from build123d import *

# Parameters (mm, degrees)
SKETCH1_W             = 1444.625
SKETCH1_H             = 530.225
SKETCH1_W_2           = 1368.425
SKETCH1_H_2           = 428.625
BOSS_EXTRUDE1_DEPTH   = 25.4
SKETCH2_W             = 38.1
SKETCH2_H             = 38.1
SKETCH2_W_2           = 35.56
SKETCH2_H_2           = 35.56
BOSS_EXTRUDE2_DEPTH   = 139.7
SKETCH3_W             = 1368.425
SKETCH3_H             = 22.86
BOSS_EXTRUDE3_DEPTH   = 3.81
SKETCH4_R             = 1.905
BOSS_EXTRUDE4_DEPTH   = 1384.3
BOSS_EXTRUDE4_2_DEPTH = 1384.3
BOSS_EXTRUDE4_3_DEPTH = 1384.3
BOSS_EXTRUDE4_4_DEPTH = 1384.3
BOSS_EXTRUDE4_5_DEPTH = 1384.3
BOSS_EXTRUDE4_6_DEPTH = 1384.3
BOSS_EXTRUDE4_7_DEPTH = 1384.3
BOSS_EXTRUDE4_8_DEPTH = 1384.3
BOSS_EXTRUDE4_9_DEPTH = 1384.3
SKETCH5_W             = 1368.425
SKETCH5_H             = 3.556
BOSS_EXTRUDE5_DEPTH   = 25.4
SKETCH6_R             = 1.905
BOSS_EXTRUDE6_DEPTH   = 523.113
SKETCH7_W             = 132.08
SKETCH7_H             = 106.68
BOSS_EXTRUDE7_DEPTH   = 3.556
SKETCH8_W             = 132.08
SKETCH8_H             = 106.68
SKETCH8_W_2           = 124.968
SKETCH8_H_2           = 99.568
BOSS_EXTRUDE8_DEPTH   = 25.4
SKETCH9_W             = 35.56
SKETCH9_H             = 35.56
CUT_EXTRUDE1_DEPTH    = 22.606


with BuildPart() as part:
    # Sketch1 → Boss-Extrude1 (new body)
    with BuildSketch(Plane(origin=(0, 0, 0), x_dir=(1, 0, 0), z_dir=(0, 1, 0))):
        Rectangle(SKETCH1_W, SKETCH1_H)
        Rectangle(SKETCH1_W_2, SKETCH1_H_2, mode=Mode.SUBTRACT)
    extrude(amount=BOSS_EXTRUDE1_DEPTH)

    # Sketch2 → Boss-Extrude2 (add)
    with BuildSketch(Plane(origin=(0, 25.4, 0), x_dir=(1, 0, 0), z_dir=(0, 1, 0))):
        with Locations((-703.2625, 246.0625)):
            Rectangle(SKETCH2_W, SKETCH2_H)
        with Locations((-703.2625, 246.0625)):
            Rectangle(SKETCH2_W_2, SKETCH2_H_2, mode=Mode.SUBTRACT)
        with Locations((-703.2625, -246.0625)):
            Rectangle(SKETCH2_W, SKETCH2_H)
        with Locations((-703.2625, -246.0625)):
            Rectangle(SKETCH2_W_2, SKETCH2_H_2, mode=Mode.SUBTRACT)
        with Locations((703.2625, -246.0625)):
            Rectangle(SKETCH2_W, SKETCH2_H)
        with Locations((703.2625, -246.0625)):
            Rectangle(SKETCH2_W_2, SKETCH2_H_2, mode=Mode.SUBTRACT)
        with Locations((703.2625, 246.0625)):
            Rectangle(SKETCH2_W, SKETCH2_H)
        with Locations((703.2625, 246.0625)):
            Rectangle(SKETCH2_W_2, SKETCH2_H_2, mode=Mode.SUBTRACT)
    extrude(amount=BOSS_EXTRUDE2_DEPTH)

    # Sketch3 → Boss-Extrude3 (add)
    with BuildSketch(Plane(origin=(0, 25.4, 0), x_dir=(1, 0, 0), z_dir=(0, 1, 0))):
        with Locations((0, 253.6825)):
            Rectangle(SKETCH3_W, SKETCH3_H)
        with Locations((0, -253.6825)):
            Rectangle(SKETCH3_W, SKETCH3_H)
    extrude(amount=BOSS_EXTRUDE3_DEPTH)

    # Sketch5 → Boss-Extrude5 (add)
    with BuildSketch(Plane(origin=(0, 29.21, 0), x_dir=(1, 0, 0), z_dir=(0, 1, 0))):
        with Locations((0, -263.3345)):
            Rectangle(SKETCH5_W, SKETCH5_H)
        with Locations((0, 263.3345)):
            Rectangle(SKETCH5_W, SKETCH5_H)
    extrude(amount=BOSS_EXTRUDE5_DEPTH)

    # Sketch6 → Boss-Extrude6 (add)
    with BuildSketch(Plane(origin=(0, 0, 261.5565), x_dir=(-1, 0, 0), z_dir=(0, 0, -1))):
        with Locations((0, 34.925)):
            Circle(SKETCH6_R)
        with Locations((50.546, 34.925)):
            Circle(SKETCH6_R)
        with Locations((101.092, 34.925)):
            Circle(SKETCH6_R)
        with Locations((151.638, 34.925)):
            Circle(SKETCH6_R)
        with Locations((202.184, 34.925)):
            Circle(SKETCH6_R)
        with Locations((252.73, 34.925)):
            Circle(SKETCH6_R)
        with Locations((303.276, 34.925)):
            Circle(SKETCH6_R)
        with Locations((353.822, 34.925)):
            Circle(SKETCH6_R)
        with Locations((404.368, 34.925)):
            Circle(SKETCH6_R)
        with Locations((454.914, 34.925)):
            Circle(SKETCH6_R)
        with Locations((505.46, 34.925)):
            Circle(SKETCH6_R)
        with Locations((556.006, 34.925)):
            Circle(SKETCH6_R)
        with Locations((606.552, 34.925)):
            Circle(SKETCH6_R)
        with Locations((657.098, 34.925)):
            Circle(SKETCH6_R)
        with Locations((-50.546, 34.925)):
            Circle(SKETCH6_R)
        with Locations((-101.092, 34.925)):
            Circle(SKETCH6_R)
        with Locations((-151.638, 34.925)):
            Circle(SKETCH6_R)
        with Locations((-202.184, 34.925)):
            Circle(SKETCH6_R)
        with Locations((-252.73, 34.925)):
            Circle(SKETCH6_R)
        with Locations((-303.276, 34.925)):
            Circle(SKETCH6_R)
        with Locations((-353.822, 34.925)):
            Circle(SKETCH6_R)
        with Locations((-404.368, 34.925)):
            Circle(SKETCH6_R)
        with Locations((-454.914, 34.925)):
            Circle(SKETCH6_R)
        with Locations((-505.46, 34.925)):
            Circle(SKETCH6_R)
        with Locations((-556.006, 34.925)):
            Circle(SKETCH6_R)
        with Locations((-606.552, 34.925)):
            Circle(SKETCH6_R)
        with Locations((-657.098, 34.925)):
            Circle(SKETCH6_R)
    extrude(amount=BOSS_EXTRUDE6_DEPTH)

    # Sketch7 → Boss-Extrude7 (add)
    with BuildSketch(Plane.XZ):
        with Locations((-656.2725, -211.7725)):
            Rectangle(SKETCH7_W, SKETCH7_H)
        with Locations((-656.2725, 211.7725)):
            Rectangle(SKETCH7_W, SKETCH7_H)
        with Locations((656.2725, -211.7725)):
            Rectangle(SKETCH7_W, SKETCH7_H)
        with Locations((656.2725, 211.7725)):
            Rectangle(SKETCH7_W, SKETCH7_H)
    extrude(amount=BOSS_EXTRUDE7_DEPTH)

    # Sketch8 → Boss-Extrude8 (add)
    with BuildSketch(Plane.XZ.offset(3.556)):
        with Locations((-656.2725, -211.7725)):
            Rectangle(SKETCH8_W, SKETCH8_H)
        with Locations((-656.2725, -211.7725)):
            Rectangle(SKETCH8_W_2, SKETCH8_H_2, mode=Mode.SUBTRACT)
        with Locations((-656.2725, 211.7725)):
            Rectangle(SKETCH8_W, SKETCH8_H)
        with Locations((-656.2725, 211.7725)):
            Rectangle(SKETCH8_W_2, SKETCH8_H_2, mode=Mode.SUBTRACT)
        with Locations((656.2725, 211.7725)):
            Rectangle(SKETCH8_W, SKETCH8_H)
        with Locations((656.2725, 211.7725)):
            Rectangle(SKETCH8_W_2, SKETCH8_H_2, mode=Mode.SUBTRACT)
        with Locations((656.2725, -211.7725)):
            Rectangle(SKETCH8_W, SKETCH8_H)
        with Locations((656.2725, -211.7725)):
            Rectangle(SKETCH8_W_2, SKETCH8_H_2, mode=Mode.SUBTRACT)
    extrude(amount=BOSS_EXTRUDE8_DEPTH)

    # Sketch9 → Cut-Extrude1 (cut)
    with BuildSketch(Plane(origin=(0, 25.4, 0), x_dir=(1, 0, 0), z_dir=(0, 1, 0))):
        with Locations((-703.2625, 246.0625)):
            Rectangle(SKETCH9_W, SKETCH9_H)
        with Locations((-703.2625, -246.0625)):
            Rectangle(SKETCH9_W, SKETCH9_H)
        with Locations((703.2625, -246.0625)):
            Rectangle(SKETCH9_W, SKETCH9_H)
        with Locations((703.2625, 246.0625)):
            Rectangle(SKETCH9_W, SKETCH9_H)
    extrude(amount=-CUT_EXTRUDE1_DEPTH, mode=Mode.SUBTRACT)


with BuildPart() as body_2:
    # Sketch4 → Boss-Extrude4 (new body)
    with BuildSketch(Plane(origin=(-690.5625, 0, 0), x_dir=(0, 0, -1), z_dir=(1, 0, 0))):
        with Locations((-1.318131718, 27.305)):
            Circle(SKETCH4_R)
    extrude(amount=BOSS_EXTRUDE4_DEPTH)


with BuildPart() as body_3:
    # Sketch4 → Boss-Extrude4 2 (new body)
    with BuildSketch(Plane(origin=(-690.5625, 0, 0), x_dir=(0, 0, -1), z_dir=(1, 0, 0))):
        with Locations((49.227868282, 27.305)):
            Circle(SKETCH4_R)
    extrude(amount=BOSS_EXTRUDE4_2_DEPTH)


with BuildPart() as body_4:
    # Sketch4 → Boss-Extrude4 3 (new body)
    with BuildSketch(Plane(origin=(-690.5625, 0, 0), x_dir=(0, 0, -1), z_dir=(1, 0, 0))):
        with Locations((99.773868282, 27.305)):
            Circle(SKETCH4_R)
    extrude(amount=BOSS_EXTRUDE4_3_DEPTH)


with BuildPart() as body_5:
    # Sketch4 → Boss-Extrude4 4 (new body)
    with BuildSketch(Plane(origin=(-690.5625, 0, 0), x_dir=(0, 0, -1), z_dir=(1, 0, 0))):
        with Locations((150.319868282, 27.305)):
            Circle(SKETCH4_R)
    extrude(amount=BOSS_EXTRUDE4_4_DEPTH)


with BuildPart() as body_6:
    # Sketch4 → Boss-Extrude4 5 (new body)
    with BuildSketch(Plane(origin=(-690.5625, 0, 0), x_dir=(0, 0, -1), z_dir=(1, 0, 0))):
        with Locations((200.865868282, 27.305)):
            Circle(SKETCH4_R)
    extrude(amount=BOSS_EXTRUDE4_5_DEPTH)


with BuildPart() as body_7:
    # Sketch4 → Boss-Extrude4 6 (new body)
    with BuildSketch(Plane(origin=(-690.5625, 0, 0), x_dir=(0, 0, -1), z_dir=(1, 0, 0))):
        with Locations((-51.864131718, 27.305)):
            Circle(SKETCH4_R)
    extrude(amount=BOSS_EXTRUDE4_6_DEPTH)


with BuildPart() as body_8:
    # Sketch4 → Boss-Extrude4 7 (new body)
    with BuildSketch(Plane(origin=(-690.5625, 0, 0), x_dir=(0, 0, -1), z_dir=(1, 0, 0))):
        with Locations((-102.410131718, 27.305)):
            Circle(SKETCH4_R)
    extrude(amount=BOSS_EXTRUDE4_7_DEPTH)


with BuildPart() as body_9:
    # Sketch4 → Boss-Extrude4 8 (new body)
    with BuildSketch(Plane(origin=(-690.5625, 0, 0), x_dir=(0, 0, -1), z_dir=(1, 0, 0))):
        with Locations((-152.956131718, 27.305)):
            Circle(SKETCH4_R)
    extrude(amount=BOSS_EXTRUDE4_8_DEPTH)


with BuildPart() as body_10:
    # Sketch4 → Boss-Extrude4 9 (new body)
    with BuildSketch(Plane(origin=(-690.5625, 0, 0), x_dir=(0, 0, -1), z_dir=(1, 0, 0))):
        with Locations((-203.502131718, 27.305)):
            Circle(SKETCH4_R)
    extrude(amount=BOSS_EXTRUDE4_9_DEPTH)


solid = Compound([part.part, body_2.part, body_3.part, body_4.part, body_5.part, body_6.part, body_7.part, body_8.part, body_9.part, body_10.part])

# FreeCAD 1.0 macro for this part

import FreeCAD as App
import Part
import Sketcher
Q = App.Units.Quantity

doc = App.newDocument("Part")
params = doc.addObject("Spreadsheet::Sheet", "Params")
for row, (alias, value) in enumerate([
    ("sketch1_width", "56.875 in"),
    ("sketch1_height", "20.875 in"),
    ("pad1_length", "1 in"),
    ("sketch2_width", "1.5 in"),
    ("sketch2_width2", "1.4 in"),
    ("pad2_length", "5.5 in"),
    ("sketch3_height", "0.9 in"),
    ("sketch3_width", "53.875 in"),
    ("pad3_length", "0.15 in"),
    ("sketch4_height", "0.14 in"),
    ("sketch4_width", "53.875 in"),
    ("pad4_length", "1 in"),
    ("sketch5_diameter", "0.15 in"),
    ("pad5_length", "20.595 in"),
    ("sketch6_width", "5.2 in"),
    ("sketch6_height", "4.2 in"),
    ("pad6_length", "0.14 in"),
    ("sketch7_width", "5.2 in"),
    ("sketch7_height", "4.2 in"),
    ("sketch7_width2", "4.92 in"),
    ("sketch7_height2", "3.92 in"),
    ("pad7_length", "1 in"),
    ("sketch8_width", "1.4 in"),
    ("pocket1_length", "0.89 in"),
    ("sketch9_diameter", "0.15 in"),
    ("pad8_length", "54.5 in"),
    ("sketch10_diameter", "0.15 in"),
    ("pad9_length", "54.5 in"),
    ("sketch11_diameter", "0.15 in"),
    ("pad10_length", "54.5 in"),
    ("sketch12_diameter", "0.15 in"),
    ("pad11_length", "54.5 in"),
    ("sketch13_diameter", "0.15 in"),
    ("pad12_length", "54.5 in"),
    ("sketch14_diameter", "0.15 in"),
    ("pad13_length", "54.5 in"),
    ("sketch15_diameter", "0.15 in"),
    ("pad14_length", "54.5 in"),
    ("sketch16_diameter", "0.15 in"),
    ("pad15_length", "54.5 in"),
    ("sketch17_diameter", "0.15 in"),
    ("pad16_length", "54.5 in"),
], start=1):
    params.set(f"A{row}", alias)
    params.set(f"B{row}", "=" + value)
    params.setAlias(f"B{row}", alias)

body = doc.addObject("PartDesign::Body", "Body")

# Sketch on XZ plane
sketch1 = doc.addObject("Sketcher::SketchObject", "Sketch")
body.addObject(sketch1)
sketch1.AttachmentSupport = (doc.XZ_Plane, [""])
sketch1.MapMode = "FlatFace"
sketch1.addGeometry([
    Part.LineSegment(App.Vector(-722, -265, 0), App.Vector(-722, 265, 0)),  # 0
    Part.LineSegment(App.Vector(-722, 265, 0), App.Vector(722, 265, 0)),  # 1
    Part.LineSegment(App.Vector(722, 265, 0), App.Vector(722, -265, 0)),  # 2
    Part.LineSegment(App.Vector(722, -265, 0), App.Vector(-722, -265, 0)),  # 3
    Part.LineSegment(App.Vector(684, 214, 0), App.Vector(-684, 214, 0)),  # 4
    Part.LineSegment(App.Vector(-684, 214, 0), App.Vector(-684, -214, 0)),  # 5
    Part.LineSegment(App.Vector(-684, -214, 0), App.Vector(684, -214, 0)),  # 6
    Part.LineSegment(App.Vector(684, -214, 0), App.Vector(684, 214, 0)),  # 7
], False)
sketch1.addConstraint([
    Sketcher.Constraint("Coincident", 0, 2, 1, 1),
    Sketcher.Constraint("Coincident", 1, 2, 2, 1),
    Sketcher.Constraint("Coincident", 2, 2, 3, 1),
    Sketcher.Constraint("Coincident", 3, 2, 0, 1),
    Sketcher.Constraint("Coincident", 4, 2, 5, 1),
    Sketcher.Constraint("Coincident", 5, 2, 6, 1),
    Sketcher.Constraint("Coincident", 6, 2, 7, 1),
    Sketcher.Constraint("Coincident", 7, 2, 4, 1),
    Sketcher.Constraint("Vertical", 0),
    Sketcher.Constraint("Horizontal", 1),
    Sketcher.Constraint("Vertical", 2),
    Sketcher.Constraint("Horizontal", 3),
    Sketcher.Constraint("Horizontal", 4),
    Sketcher.Constraint("Vertical", 5),
    Sketcher.Constraint("Horizontal", 6),
    Sketcher.Constraint("Vertical", 7),
    Sketcher.Constraint("Symmetric", 0, 2, 2, 2, -1, 1),
    Sketcher.Constraint("Symmetric", 4, 2, 6, 2, -1, 1),
    Sketcher.Constraint("DistanceY", 4, 2, 0, 2, Q("2 in")),
    Sketcher.Constraint("DistanceX", 0, 2, 4, 2, Q("1.5 in")),
    Sketcher.Constraint("DistanceX", 1, 1, 1, 2, Q("56.875 in")),
    Sketcher.Constraint("DistanceY", 0, 1, 0, 2, Q("20.875 in")),
])
sketch1.setExpression("Constraints[20]", "Params.sketch1_width")
sketch1.setExpression("Constraints[21]", "Params.sketch1_height")
pad1 = doc.addObject("PartDesign::Pad", "Pad")
body.addObject(pad1)
pad1.Profile = sketch1
pad1.setExpression("Length", "Params.pad1_length")
pad1.Reversed = True

# Sketch on XZ plane
sketch2 = doc.addObject("Sketcher::SketchObject", "Sketch001")
body.addObject(sketch2)
sketch2.AttachmentSupport = (doc.XZ_Plane, [""])
sketch2.MapMode = "FlatFace"
sketch2.AttachmentOffset = App.Placement(App.Vector(0, 0, -1 * 25.4), App.Rotation())
sketch2.addGeometry([
    Part.LineSegment(App.Vector(-722, -265, 0), App.Vector(-722, -227, 0)),  # 0
    Part.LineSegment(App.Vector(-722, -227, 0), App.Vector(-684, -227, 0)),  # 1
    Part.LineSegment(App.Vector(-684, -227, 0), App.Vector(-684, -265, 0)),  # 2
    Part.LineSegment(App.Vector(-684, -265, 0), App.Vector(-722, -265, 0)),  # 3
    Part.LineSegment(App.Vector(-685, -228, 0), App.Vector(-721, -228, 0)),  # 4
    Part.LineSegment(App.Vector(-721, -228, 0), App.Vector(-721, -264, 0)),  # 5
    Part.LineSegment(App.Vector(-721, -264, 0), App.Vector(-685, -264, 0)),  # 6
    Part.LineSegment(App.Vector(-685, -264, 0), App.Vector(-685, -228, 0)),  # 7
    Part.LineSegment(App.Vector(-722, 227, 0), App.Vector(-722, 265, 0)),  # 8
    Part.LineSegment(App.Vector(-722, 265, 0), App.Vector(-684, 265, 0)),  # 9
    Part.LineSegment(App.Vector(-684, 265, 0), App.Vector(-684, 227, 0)),  # 10
    Part.LineSegment(App.Vector(-684, 227, 0), App.Vector(-722, 227, 0)),  # 11
    Part.LineSegment(App.Vector(-685, 264, 0), App.Vector(-721, 264, 0)),  # 12
    Part.LineSegment(App.Vector(-721, 264, 0), App.Vector(-721, 228, 0)),  # 13
    Part.LineSegment(App.Vector(-721, 228, 0), App.Vector(-685, 228, 0)),  # 14
    Part.LineSegment(App.Vector(-685, 228, 0), App.Vector(-685, 264, 0)),  # 15
    Part.LineSegment(App.Vector(684, 227, 0), App.Vector(684, 265, 0)),  # 16
    Part.LineSegment(App.Vector(684, 265, 0), App.Vector(722, 265, 0)),  # 17
    Part.LineSegment(App.Vector(722, 265, 0), App.Vector(722, 227, 0)),  # 18
    Part.LineSegment(App.Vector(722, 227, 0), App.Vector(684, 227, 0)),  # 19
    Part.LineSegment(App.Vector(721, 264, 0), App.Vector(685, 264, 0)),  # 20
    Part.LineSegment(App.Vector(685, 264, 0), App.Vector(685, 228, 0)),  # 21
    Part.LineSegment(App.Vector(685, 228, 0), App.Vector(721, 228, 0)),  # 22
    Part.LineSegment(App.Vector(721, 228, 0), App.Vector(721, 264, 0)),  # 23
    Part.LineSegment(App.Vector(684, -265, 0), App.Vector(684, -227, 0)),  # 24
    Part.LineSegment(App.Vector(684, -227, 0), App.Vector(722, -227, 0)),  # 25
    Part.LineSegment(App.Vector(722, -227, 0), App.Vector(722, -265, 0)),  # 26
    Part.LineSegment(App.Vector(722, -265, 0), App.Vector(684, -265, 0)),  # 27
    Part.LineSegment(App.Vector(721, -228, 0), App.Vector(685, -228, 0)),  # 28
    Part.LineSegment(App.Vector(685, -228, 0), App.Vector(685, -264, 0)),  # 29
    Part.LineSegment(App.Vector(685, -264, 0), App.Vector(721, -264, 0)),  # 30
    Part.LineSegment(App.Vector(721, -264, 0), App.Vector(721, -228, 0)),  # 31
], False)
sketch2.addConstraint([
    Sketcher.Constraint("Coincident", 0, 2, 1, 1),
    Sketcher.Constraint("Coincident", 1, 2, 2, 1),
    Sketcher.Constraint("Coincident", 2, 2, 3, 1),
    Sketcher.Constraint("Coincident", 3, 2, 0, 1),
    Sketcher.Constraint("Coincident", 4, 2, 5, 1),
    Sketcher.Constraint("Coincident", 5, 2, 6, 1),
    Sketcher.Constraint("Coincident", 6, 2, 7, 1),
    Sketcher.Constraint("Coincident", 7, 2, 4, 1),
    Sketcher.Constraint("Coincident", 8, 2, 9, 1),
    Sketcher.Constraint("Coincident", 9, 2, 10, 1),
    Sketcher.Constraint("Coincident", 10, 2, 11, 1),
    Sketcher.Constraint("Coincident", 11, 2, 8, 1),
    Sketcher.Constraint("Coincident", 12, 2, 13, 1),
    Sketcher.Constraint("Coincident", 13, 2, 14, 1),
    Sketcher.Constraint("Coincident", 14, 2, 15, 1),
    Sketcher.Constraint("Coincident", 15, 2, 12, 1),
    Sketcher.Constraint("Coincident", 16, 2, 17, 1),
    Sketcher.Constraint("Coincident", 17, 2, 18, 1),
    Sketcher.Constraint("Coincident", 18, 2, 19, 1),
    Sketcher.Constraint("Coincident", 19, 2, 16, 1),
    Sketcher.Constraint("Coincident", 20, 2, 21, 1),
    Sketcher.Constraint("Coincident", 21, 2, 22, 1),
    Sketcher.Constraint("Coincident", 22, 2, 23, 1),
    Sketcher.Constraint("Coincident", 23, 2, 20, 1),
    Sketcher.Constraint("Coincident", 24, 2, 25, 1),
    Sketcher.Constraint("Coincident", 25, 2, 26, 1),
    Sketcher.Constraint("Coincident", 26, 2, 27, 1),
    Sketcher.Constraint("Coincident", 27, 2, 24, 1),
    Sketcher.Constraint("Coincident", 28, 2, 29, 1),
    Sketcher.Constraint("Coincident", 29, 2, 30, 1),
    Sketcher.Constraint("Coincident", 30, 2, 31, 1),
    Sketcher.Constraint("Coincident", 31, 2, 28, 1),
    Sketcher.Constraint("Vertical", 0),
    Sketcher.Constraint("Horizontal", 1),
    Sketcher.Constraint("Vertical", 2),
    Sketcher.Constraint("Horizontal", 3),
    Sketcher.Constraint("Horizontal", 4),
    Sketcher.Constraint("Vertical", 5),
    Sketcher.Constraint("Horizontal", 6),
    Sketcher.Constraint("Vertical", 7),
    Sketcher.Constraint("Vertical", 8),
    Sketcher.Constraint("Horizontal", 9),
    Sketcher.Constraint("Vertical", 10),
    Sketcher.Constraint("Horizontal", 11),
    Sketcher.Constraint("Horizontal", 12),
    Sketcher.Constraint("Vertical", 13),
    Sketcher.Constraint("Horizontal", 14),
    Sketcher.Constraint("Vertical", 15),
    Sketcher.Constraint("Vertical", 16),
    Sketcher.Constraint("Horizontal", 17),
    Sketcher.Constraint("Vertical", 18),
    Sketcher.Constraint("Horizontal", 19),
    Sketcher.Constraint("Horizontal", 20),
    Sketcher.Constraint("Vertical", 21),
    Sketcher.Constraint("Horizontal", 22),
    Sketcher.Constraint("Vertical", 23),
    Sketcher.Constraint("Vertical", 24),
    Sketcher.Constraint("Horizontal", 25),
    Sketcher.Constraint("Vertical", 26),
    Sketcher.Constraint("Horizontal", 27),
    Sketcher.Constraint("Horizontal", 28),
    Sketcher.Constraint("Vertical", 29),
    Sketcher.Constraint("Horizontal", 30),
    Sketcher.Constraint("Vertical", 31),
    Sketcher.Constraint("Symmetric", 2, 2, 16, 2, -1, 1),
    Sketcher.Constraint("Symmetric", 0, 2, 18, 2, -1, 1),
    Sketcher.Constraint("Symmetric", 6, 2, 20, 2, -1, 1),
    Sketcher.Constraint("Symmetric", 4, 2, 22, 2, -1, 1),
    Sketcher.Constraint("Symmetric", 10, 2, 24, 2, -1, 1),
    Sketcher.Constraint("Symmetric", 8, 2, 26, 2, -1, 1),
    Sketcher.Constraint("Symmetric", 14, 2, 28, 2, -1, 1),
    Sketcher.Constraint("Symmetric", 12, 2, 30, 2, -1, 1),
    Sketcher.Constraint("Symmetric", 9, 2, 16, 2, -2),
    Sketcher.Constraint("Symmetric", 11, 2, 18, 2, -2),
    Sketcher.Constraint("Symmetric", 15, 2, 20, 2, -2),
    Sketcher.Constraint("Symmetric", 13, 2, 22, 2, -2),
    Sketcher.Constraint("Equal", 27, 0),
    Sketcher.Constraint("Equal", 30, 5),
    Sketcher.Constraint("DistanceX", 1, 1, 1, 2, Q("1.5 in")),
    Sketcher.Constraint("DistanceX", 4, 2, 4, 1, Q("1.4 in")),
    Sketcher.Constraint("DistanceX", 0, 2, 4, 2, Q("0.05 in")),
    Sketcher.Constraint("DistanceY", 4, 2, 0, 2, Q("0.05 in")),
    Sketcher.Constraint("DistanceX", 0, 2, -1, 1, Q("28.4375 in")),
    Sketcher.Constraint("DistanceY", 0, 2, -1, 1, Q("8.9375 in")),
])
sketch2.setExpression("Constraints[78]", "Params.sketch2_width")
sketch2.setExpression("Constraints[79]", "Params.sketch2_width2")
pad2 = doc.addObject("PartDesign::Pad", "Pad001")
body.addObject(pad2)
pad2.Profile = sketch2
pad2.setExpression("Length", "Params.pad2_length")
pad2.Reversed = True

# Sketch on XZ plane
sketch3 = doc.addObject("Sketcher::SketchObject", "Sketch002")
body.addObject(sketch3)
sketch3.AttachmentSupport = (doc.XZ_Plane, [""])
sketch3.MapMode = "FlatFace"
sketch3.AttachmentOffset = App.Placement(App.Vector(0, 0, -1 * 25.4), App.Rotation())
sketch3.addGeometry([
    Part.LineSegment(App.Vector(-684, -265, 0), App.Vector(-684, -242, 0)),  # 0
    Part.LineSegment(App.Vector(-684, -242, 0), App.Vector(684, -242, 0)),  # 1
    Part.LineSegment(App.Vector(684, -242, 0), App.Vector(684, -265, 0)),  # 2
    Part.LineSegment(App.Vector(684, -265, 0), App.Vector(-684, -265, 0)),  # 3
    Part.LineSegment(App.Vector(-684, 242, 0), App.Vector(-684, 265, 0)),  # 4
    Part.LineSegment(App.Vector(-684, 265, 0), App.Vector(684, 265, 0)),  # 5
    Part.LineSegment(App.Vector(684, 265, 0), App.Vector(684, 242, 0)),  # 6
    Part.LineSegment(App.Vector(684, 242, 0), App.Vector(-684, 242, 0)),  # 7
], False)
sketch3.addConstraint([
    Sketcher.Constraint("Coincident", 0, 2, 1, 1),
    Sketcher.Constraint("Coincident", 1, 2, 2, 1),
    Sketcher.Constraint("Coincident", 2, 2, 3, 1),
    Sketcher.Constraint("Coincident", 3, 2, 0, 1),
    Sketcher.Constraint("Coincident", 4, 2, 5, 1),
    Sketcher.Constraint("Coincident", 5, 2, 6, 1),
    Sketcher.Constraint("Coincident", 6, 2, 7, 1),
    Sketcher.Constraint("Coincident", 7, 2, 4, 1),
    Sketcher.Constraint("Vertical", 0),
    Sketcher.Constraint("Horizontal", 1),
    Sketcher.Constraint("Vertical", 2),
    Sketcher.Constraint("Horizontal", 3),
    Sketcher.Constraint("Vertical", 4),
    Sketcher.Constraint("Horizontal", 5),
    Sketcher.Constraint("Vertical", 6),
    Sketcher.Constraint("Horizontal", 7),
    Sketcher.Constraint("Symmetric", 2, 2, 4, 2, -1, 1),
    Sketcher.Constraint("Symmetric", 0, 2, 6, 2, -1, 1),
    Sketcher.Constraint("Vertical", 3, 2, 4, 2),
    Sketcher.Constraint("DistanceY", 0, 1, 0, 2, Q("0.9 in")),
    Sketcher.Constraint("DistanceX", 1, 1, 1, 2, Q("53.875 in")),
    Sketcher.Constraint("DistanceY", 2, 2, -1, 1, Q("10.4375 in")),
])
sketch3.setExpression("Constraints[19]", "Params.sketch3_height")
sketch3.setExpression("Constraints[20]", "Params.sketch3_width")
pad3 = doc.addObject("PartDesign::Pad", "Pad002")
body.addObject(pad3)
pad3.Profile = sketch3
pad3.setExpression("Length", "Params.pad3_length")
pad3.Reversed = True

# Sketch on XZ plane
sketch4 = doc.addObject("Sketcher::SketchObject", "Sketch003")
body.addObject(sketch4)
sketch4.AttachmentSupport = (doc.XZ_Plane, [""])
sketch4.MapMode = "FlatFace"
sketch4.AttachmentOffset = App.Placement(App.Vector(0, 0, -1.15 * 25.4), App.Rotation())
sketch4.addGeometry([
    Part.LineSegment(App.Vector(-684.2, 261.6, 0), App.Vector(-684.2, 265.1, 0)),  # 0
    Part.LineSegment(App.Vector(-684.2, 265.1, 0), App.Vector(684.2, 265.1, 0)),  # 1
    Part.LineSegment(App.Vector(684.2, 265.1, 0), App.Vector(684.2, 261.6, 0)),  # 2
    Part.LineSegment(App.Vector(684.2, 261.6, 0), App.Vector(-684.2, 261.6, 0)),  # 3
    Part.LineSegment(App.Vector(-684.2, -265.1, 0), App.Vector(-684.2, -261.6, 0)),  # 4
    Part.LineSegment(App.Vector(-684.2, -261.6, 0), App.Vector(684.2, -261.6, 0)),  # 5
    Part.LineSegment(App.Vector(684.2, -261.6, 0), App.Vector(684.2, -265.1, 0)),  # 6
    Part.LineSegment(App.Vector(684.2, -265.1, 0), App.Vector(-684.2, -265.1, 0)),  # 7
], False)
sketch4.addConstraint([
    Sketcher.Constraint("Coincident", 0, 2, 1, 1),
    Sketcher.Constraint("Coincident", 1, 2, 2, 1),
    Sketcher.Constraint("Coincident", 2, 2, 3, 1),
    Sketcher.Constraint("Coincident", 3, 2, 0, 1),
    Sketcher.Constraint("Coincident", 4, 2, 5, 1),
    Sketcher.Constraint("Coincident", 5, 2, 6, 1),
    Sketcher.Constraint("Coincident", 6, 2, 7, 1),
    Sketcher.Constraint("Coincident", 7, 2, 4, 1),
    Sketcher.Constraint("Vertical", 0),
    Sketcher.Constraint("Horizontal", 1),
    Sketcher.Constraint("Vertical", 2),
    Sketcher.Constraint("Horizontal", 3),
    Sketcher.Constraint("Vertical", 4),
    Sketcher.Constraint("Horizontal", 5),
    Sketcher.Constraint("Vertical", 6),
    Sketcher.Constraint("Horizontal", 7),
    Sketcher.Constraint("Symmetric", 2, 2, 4, 2, -1, 1),
    Sketcher.Constraint("Symmetric", 0, 2, 6, 2, -1, 1),
    Sketcher.Constraint("Vertical", 3, 2, 4, 2),
    Sketcher.Constraint("DistanceY", 0, 1, 0, 2, Q("0.14 in")),
    Sketcher.Constraint("DistanceX", 1, 1, 1, 2, Q("53.875 in")),
    Sketcher.Constraint("DistanceY", -1, 1, 0, 2, Q("10.4375 in")),
])
sketch4.setExpression("Constraints[19]", "Params.sketch4_height")
sketch4.setExpression("Constraints[20]", "Params.sketch4_width")
pad4 = doc.addObject("PartDesign::Pad", "Pad003")
body.addObject(pad4)
pad4.Profile = sketch4
pad4.setExpression("Length", "Params.pad4_length")
pad4.Reversed = True

# Sketch on XY plane
sketch5 = doc.addObject("Sketcher::SketchObject", "Sketch004")
body.addObject(sketch5)
sketch5.AttachmentSupport = (doc.XY_Plane, [""])
sketch5.MapMode = "FlatFace"
sketch5.AttachmentOffset = App.Placement(App.Vector(0, 0, 10.2975 * 25.4), App.Rotation())
sketch5.addGeometry([
    Part.Circle(App.Vector(0, 34.9, 0), App.Vector(0, 0, 1), 1.9),  # 0
    Part.Circle(App.Vector(-50.5, 34.9, 0), App.Vector(0, 0, 1), 1.9),  # 1
    Part.Circle(App.Vector(-101.1, 34.9, 0), App.Vector(0, 0, 1), 1.9),  # 2
    Part.Circle(App.Vector(-151.6, 34.9, 0), App.Vector(0, 0, 1), 1.9),  # 3
    Part.Circle(App.Vector(-202.2, 34.9, 0), App.Vector(0, 0, 1), 1.9),  # 4
    Part.Circle(App.Vector(-252.7, 34.9, 0), App.Vector(0, 0, 1), 1.9),  # 5
    Part.Circle(App.Vector(-303.3, 34.9, 0), App.Vector(0, 0, 1), 1.9),  # 6
    Part.Circle(App.Vector(-353.8, 34.9, 0), App.Vector(0, 0, 1), 1.9),  # 7
    Part.Circle(App.Vector(-404.4, 34.9, 0), App.Vector(0, 0, 1), 1.9),  # 8
    Part.Circle(App.Vector(-454.9, 34.9, 0), App.Vector(0, 0, 1), 1.9),  # 9
    Part.Circle(App.Vector(-505.5, 34.9, 0), App.Vector(0, 0, 1), 1.9),  # 10
    Part.Circle(App.Vector(-556, 34.9, 0), App.Vector(0, 0, 1), 1.9),  # 11
    Part.Circle(App.Vector(-606.6, 34.9, 0), App.Vector(0, 0, 1), 1.9),  # 12
    Part.Circle(App.Vector(-657.1, 34.9, 0), App.Vector(0, 0, 1), 1.9),  # 13
    Part.Circle(App.Vector(50.5, 34.9, 0), App.Vector(0, 0, 1), 1.9),  # 14
    Part.Circle(App.Vector(101.1, 34.9, 0), App.Vector(0, 0, 1), 1.9),  # 15
    Part.Circle(App.Vector(151.6, 34.9, 0), App.Vector(0, 0, 1), 1.9),  # 16
    Part.Circle(App.Vector(202.2, 34.9, 0), App.Vector(0, 0, 1), 1.9),  # 17
    Part.Circle(App.Vector(252.7, 34.9, 0), App.Vector(0, 0, 1), 1.9),  # 18
    Part.Circle(App.Vector(303.3, 34.9, 0), App.Vector(0, 0, 1), 1.9),  # 19
    Part.Circle(App.Vector(353.8, 34.9, 0), App.Vector(0, 0, 1), 1.9),  # 20
    Part.Circle(App.Vector(404.4, 34.9, 0), App.Vector(0, 0, 1), 1.9),  # 21
    Part.Circle(App.Vector(454.9, 34.9, 0), App.Vector(0, 0, 1), 1.9),  # 22
    Part.Circle(App.Vector(505.5, 34.9, 0), App.Vector(0, 0, 1), 1.9),  # 23
    Part.Circle(App.Vector(556, 34.9, 0), App.Vector(0, 0, 1), 1.9),  # 24
    Part.Circle(App.Vector(606.6, 34.9, 0), App.Vector(0, 0, 1), 1.9),  # 25
    Part.Circle(App.Vector(657.1, 34.9, 0), App.Vector(0, 0, 1), 1.9),  # 26
], False)
sketch5.addConstraint([
    Sketcher.Constraint("Equal", 0, 1),
    Sketcher.Constraint("Equal", 1, 2),
    Sketcher.Constraint("Equal", 2, 3),
    Sketcher.Constraint("Equal", 3, 4),
    Sketcher.Constraint("Equal", 4, 5),
    Sketcher.Constraint("Equal", 5, 6),
    Sketcher.Constraint("Equal", 6, 7),
    Sketcher.Constraint("Equal", 7, 8),
    Sketcher.Constraint("Equal", 8, 9),
    Sketcher.Constraint("Equal", 9, 10),
    Sketcher.Constraint("Equal", 10, 11),
    Sketcher.Constraint("Equal", 11, 12),
    Sketcher.Constraint("Equal", 12, 13),
    Sketcher.Constraint("Equal", 13, 14),
    Sketcher.Constraint("Equal", 14, 15),
    Sketcher.Constraint("Equal", 15, 16),
    Sketcher.Constraint("Equal", 16, 17),
    Sketcher.Constraint("Equal", 17, 18),
    Sketcher.Constraint("Equal", 18, 19),
    Sketcher.Constraint("Equal", 19, 20),
    Sketcher.Constraint("Equal", 20, 21),
    Sketcher.Constraint("Equal", 21, 22),
    Sketcher.Constraint("Equal", 22, 23),
    Sketcher.Constraint("Equal", 23, 24),
    Sketcher.Constraint("Equal", 24, 25),
    Sketcher.Constraint("Equal", 25, 26),
    Sketcher.Constraint("Symmetric", 1, 3, 14, 3, -2),
    Sketcher.Constraint("Symmetric", 2, 3, 15, 3, -2),
    Sketcher.Constraint("Symmetric", 3, 3, 16, 3, -2),
    Sketcher.Constraint("Symmetric", 4, 3, 17, 3, -2),
    Sketcher.Constraint("Symmetric", 5, 3, 18, 3, -2),
    Sketcher.Constraint("Symmetric", 6, 3, 19, 3, -2),
    Sketcher.Constraint("Symmetric", 7, 3, 20, 3, -2),
    Sketcher.Constraint("Symmetric", 8, 3, 21, 3, -2),
    Sketcher.Constraint("Symmetric", 9, 3, 22, 3, -2),
    Sketcher.Constraint("Symmetric", 10, 3, 23, 3, -2),
    Sketcher.Constraint("Symmetric", 11, 3, 24, 3, -2),
    Sketcher.Constraint("Symmetric", 12, 3, 25, 3, -2),
    Sketcher.Constraint("Symmetric", 13, 3, 26, 3, -2),
    Sketcher.Constraint("PointOnObject", 0, 3, -2),
    Sketcher.Constraint("Horizontal", 0, 3, 1, 3),
    Sketcher.Constraint("Horizontal", 1, 3, 2, 3),
    Sketcher.Constraint("Horizontal", 2, 3, 3, 3),
    Sketcher.Constraint("Horizontal", 3, 3, 4, 3),
    Sketcher.Constraint("Horizontal", 4, 3, 5, 3),
    Sketcher.Constraint("Horizontal", 5, 3, 6, 3),
    Sketcher.Constraint("Horizontal", 6, 3, 7, 3),
    Sketcher.Constraint("Horizontal", 7, 3, 8, 3),
    Sketcher.Constraint("Horizontal", 8, 3, 9, 3),
    Sketcher.Constraint("Horizontal", 9, 3, 10, 3),
    Sketcher.Constraint("Horizontal", 10, 3, 11, 3),
    Sketcher.Constraint("Horizontal", 11, 3, 12, 3),
    Sketcher.Constraint("Horizontal", 12, 3, 13, 3),
    Sketcher.Constraint("Diameter", 0, Q("0.15 in")),
    Sketcher.Constraint("DistanceX", 10, 3, -1, 1, Q("19.9 in")),
    Sketcher.Constraint("DistanceX", 1, 3, -1, 1, Q("1.99 in")),
    Sketcher.Constraint("DistanceX", 2, 3, -1, 1, Q("3.98 in")),
    Sketcher.Constraint("DistanceX", 3, 3, -1, 1, Q("5.97 in")),
    Sketcher.Constraint("DistanceX", 4, 3, -1, 1, Q("7.96 in")),
    Sketcher.Constraint("DistanceX", 5, 3, -1, 1, Q("9.95 in")),
    Sketcher.Constraint("DistanceX", 6, 3, -1, 1, Q("11.94 in")),
    Sketcher.Constraint("DistanceX", 7, 3, -1, 1, Q("13.93 in")),
    Sketcher.Constraint("DistanceX", 8, 3, -1, 1, Q("15.92 in")),
    Sketcher.Constraint("DistanceX", 9, 3, -1, 1, Q("17.91 in")),
    Sketcher.Constraint("DistanceX", 11, 3, -1, 1, Q("21.89 in")),
    Sketcher.Constraint("DistanceX", 12, 3, -1, 1, Q("23.88 in")),
    Sketcher.Constraint("DistanceX", 13, 3, -1, 1, Q("25.87 in")),
    Sketcher.Constraint("DistanceY", -1, 1, 0, 3, Q("1.375 in")),
])
sketch5.setExpression("Constraints[53]", "Params.sketch5_diameter")
pad5 = doc.addObject("PartDesign::Pad", "Pad004")
body.addObject(pad5)
pad5.Profile = sketch5
pad5.setExpression("Length", "Params.pad5_length")
pad5.Reversed = True

# Sketch on XZ plane
sketch6 = doc.addObject("Sketcher::SketchObject", "Sketch005")
body.addObject(sketch6)
sketch6.AttachmentSupport = (doc.XZ_Plane, [""])
sketch6.MapMode = "FlatFace"
sketch6.addGeometry([
    Part.LineSegment(App.Vector(-722, -158, 0), App.Vector(-722, -265, 0)),  # 0
    Part.LineSegment(App.Vector(-722, -265, 0), App.Vector(-590, -265, 0)),  # 1
    Part.LineSegment(App.Vector(-590, -265, 0), App.Vector(-590, -158, 0)),  # 2
    Part.LineSegment(App.Vector(-590, -158, 0), App.Vector(-722, -158, 0)),  # 3
    Part.LineSegment(App.Vector(-722, 265, 0), App.Vector(-722, 158, 0)),  # 4
    Part.LineSegment(App.Vector(-722, 158, 0), App.Vector(-590, 158, 0)),  # 5
    Part.LineSegment(App.Vector(-590, 158, 0), App.Vector(-590, 265, 0)),  # 6
    Part.LineSegment(App.Vector(-590, 265, 0), App.Vector(-722, 265, 0)),  # 7
    Part.LineSegment(App.Vector(590, -158, 0), App.Vector(590, -265, 0)),  # 8
    Part.LineSegment(App.Vector(590, -265, 0), App.Vector(722, -265, 0)),  # 9
    Part.LineSegment(App.Vector(722, -265, 0), App.Vector(722, -158, 0)),  # 10
    Part.LineSegment(App.Vector(722, -158, 0), App.Vector(590, -158, 0)),  # 11
    Part.LineSegment(App.Vector(590, 265, 0), App.Vector(590, 158, 0)),  # 12
    Part.LineSegment(App.Vector(590, 158, 0), App.Vector(722, 158, 0)),  # 13
    Part.LineSegment(App.Vector(722, 158, 0), App.Vector(722, 265, 0)),  # 14
    Part.LineSegment(App.Vector(722, 265, 0), App.Vector(590, 265, 0)),  # 15
], False)
sketch6.addConstraint([
    Sketcher.Constraint("Coincident", 0, 2, 1, 1),
    Sketcher.Constraint("Coincident", 1, 2, 2, 1),
    Sketcher.Constraint("Coincident", 2, 2, 3, 1),
    Sketcher.Constraint("Coincident", 3, 2, 0, 1),
    Sketcher.Constraint("Coincident", 4, 2, 5, 1),
    Sketcher.Constraint("Coincident", 5, 2, 6, 1),
    Sketcher.Constraint("Coincident", 6, 2, 7, 1),
    Sketcher.Constraint("Coincident", 7, 2, 4, 1),
    Sketcher.Constraint("Coincident", 8, 2, 9, 1),
    Sketcher.Constraint("Coincident", 9, 2, 10, 1),
    Sketcher.Constraint("Coincident", 10, 2, 11, 1),
    Sketcher.Constraint("Coincident", 11, 2, 8, 1),
    Sketcher.Constraint("Coincident", 12, 2, 13, 1),
    Sketcher.Constraint("Coincident", 13, 2, 14, 1),
    Sketcher.Constraint("Coincident", 14, 2, 15, 1),
    Sketcher.Constraint("Coincident", 15, 2, 12, 1),
    Sketcher.Constraint("Vertical", 0),
    Sketcher.Constraint("Horizontal", 1),
    Sketcher.Constraint("Vertical", 2),
    Sketcher.Constraint("Horizontal", 3),
    Sketcher.Constraint("Vertical", 4),
    Sketcher.Constraint("Horizontal", 5),
    Sketcher.Constraint("Vertical", 6),
    Sketcher.Constraint("Horizontal", 7),
    Sketcher.Constraint("Vertical", 8),
    Sketcher.Constraint("Horizontal", 9),
    Sketcher.Constraint("Vertical", 10),
    Sketcher.Constraint("Horizontal", 11),
    Sketcher.Constraint("Vertical", 12),
    Sketcher.Constraint("Horizontal", 13),
    Sketcher.Constraint("Vertical", 14),
    Sketcher.Constraint("Horizontal", 15),
    Sketcher.Constraint("Symmetric", 6, 2, 8, 2, -1, 1),
    Sketcher.Constraint("Symmetric", 4, 2, 10, 2, -1, 1),
    Sketcher.Constraint("Symmetric", 2, 2, 12, 2, -1, 1),
    Sketcher.Constraint("Symmetric", 0, 2, 14, 2, -1, 1),
    Sketcher.Constraint("Symmetric", 1, 2, 8, 2, -2),
    Sketcher.Constraint("Symmetric", 3, 2, 10, 2, -2),
    Sketcher.Constraint("DistanceX", 1, 1, 1, 2, Q("5.2 in")),
    Sketcher.Constraint("DistanceY", 0, 2, 0, 1, Q("4.2 in")),
    Sketcher.Constraint("DistanceX", 0, 2, -1, 1, Q("28.4375 in")),
    Sketcher.Constraint("DistanceY", 0, 2, -1, 1, Q("10.4375 in")),
])
sketch6.setExpression("Constraints[38]", "Params.sketch6_width")
sketch6.setExpression("Constraints[39]", "Params.sketch6_height")
pad6 = doc.addObject("PartDesign::Pad", "Pad005")
body.addObject(pad6)
pad6.Profile = sketch6
pad6.setExpression("Length", "Params.pad6_length")

# Sketch on XZ plane
sketch7 = doc.addObject("Sketcher::SketchObject", "Sketch006")
body.addObject(sketch7)
sketch7.AttachmentSupport = (doc.XZ_Plane, [""])
sketch7.MapMode = "FlatFace"
sketch7.AttachmentOffset = App.Placement(App.Vector(0, 0, 0.14 * 25.4), App.Rotation())
sketch7.addGeometry([
    Part.LineSegment(App.Vector(-722, -158, 0), App.Vector(-722, -265, 0)),  # 0
    Part.LineSegment(App.Vector(-722, -265, 0), App.Vector(-590, -265, 0)),  # 1
    Part.LineSegment(App.Vector(-590, -265, 0), App.Vector(-590, -158, 0)),  # 2
    Part.LineSegment(App.Vector(-590, -158, 0), App.Vector(-722, -158, 0)),  # 3
    Part.LineSegment(App.Vector(-594, -262, 0), App.Vector(-719, -262, 0)),  # 4
    Part.LineSegment(App.Vector(-719, -262, 0), App.Vector(-719, -162, 0)),  # 5
    Part.LineSegment(App.Vector(-719, -162, 0), App.Vector(-594, -162, 0)),  # 6
    Part.LineSegment(App.Vector(-594, -162, 0), App.Vector(-594, -262, 0)),  # 7
    Part.LineSegment(App.Vector(-722, 265, 0), App.Vector(-722, 158, 0)),  # 8
    Part.LineSegment(App.Vector(-722, 158, 0), App.Vector(-590, 158, 0)),  # 9
    Part.LineSegment(App.Vector(-590, 158, 0), App.Vector(-590, 265, 0)),  # 10
    Part.LineSegment(App.Vector(-590, 265, 0), App.Vector(-722, 265, 0)),  # 11
    Part.LineSegment(App.Vector(-594, 162, 0), App.Vector(-719, 162, 0)),  # 12
    Part.LineSegment(App.Vector(-719, 162, 0), App.Vector(-719, 262, 0)),  # 13
    Part.LineSegment(App.Vector(-719, 262, 0), App.Vector(-594, 262, 0)),  # 14
    Part.LineSegment(App.Vector(-594, 262, 0), App.Vector(-594, 162, 0)),  # 15
    Part.LineSegment(App.Vector(590, 265, 0), App.Vector(590, 158, 0)),  # 16
    Part.LineSegment(App.Vector(590, 158, 0), App.Vector(722, 158, 0)),  # 17
    Part.LineSegment(App.Vector(722, 158, 0), App.Vector(722, 265, 0)),  # 18
    Part.LineSegment(App.Vector(722, 265, 0), App.Vector(590, 265, 0)),  # 19
    Part.LineSegment(App.Vector(719, 162, 0), App.Vector(594, 162, 0)),  # 20
    Part.LineSegment(App.Vector(594, 162, 0), App.Vector(594, 262, 0)),  # 21
    Part.LineSegment(App.Vector(594, 262, 0), App.Vector(719, 262, 0)),  # 22
    Part.LineSegment(App.Vector(719, 262, 0), App.Vector(719, 162, 0)),  # 23
    Part.LineSegment(App.Vector(590, -158, 0), App.Vector(590, -265, 0)),  # 24
    Part.LineSegment(App.Vector(590, -265, 0), App.Vector(722, -265, 0)),  # 25
    Part.LineSegment(App.Vector(722, -265, 0), App.Vector(722, -158, 0)),  # 26
    Part.LineSegment(App.Vector(722, -158, 0), App.Vector(590, -158, 0)),  # 27
    Part.LineSegment(App.Vector(719, -262, 0), App.Vector(594, -262, 0)),  # 28
    Part.LineSegment(App.Vector(594, -262, 0), App.Vector(594, -162, 0)),  # 29
    Part.LineSegment(App.Vector(594, -162, 0), App.Vector(719, -162, 0)),  # 30
    Part.LineSegment(App.Vector(719, -162, 0), App.Vector(719, -262, 0)),  # 31
], False)
sketch7.addConstraint([
    Sketcher.Constraint("Coincident", 0, 2, 1, 1),
    Sketcher.Constraint("Coincident", 1, 2, 2, 1),
    Sketcher.Constraint("Coincident", 2, 2, 3, 1),
    Sketcher.Constraint("Coincident", 3, 2, 0, 1),
    Sketcher.Constraint("Coincident", 4, 2, 5, 1),
    Sketcher.Constraint("Coincident", 5, 2, 6, 1),
    Sketcher.Constraint("Coincident", 6, 2, 7, 1),
    Sketcher.Constraint("Coincident", 7, 2, 4, 1),
    Sketcher.Constraint("Coincident", 8, 2, 9, 1),
    Sketcher.Constraint("Coincident", 9, 2, 10, 1),
    Sketcher.Constraint("Coincident", 10, 2, 11, 1),
    Sketcher.Constraint("Coincident", 11, 2, 8, 1),
    Sketcher.Constraint("Coincident", 12, 2, 13, 1),
    Sketcher.Constraint("Coincident", 13, 2, 14, 1),
    Sketcher.Constraint("Coincident", 14, 2, 15, 1),
    Sketcher.Constraint("Coincident", 15, 2, 12, 1),
    Sketcher.Constraint("Coincident", 16, 2, 17, 1),
    Sketcher.Constraint("Coincident", 17, 2, 18, 1),
    Sketcher.Constraint("Coincident", 18, 2, 19, 1),
    Sketcher.Constraint("Coincident", 19, 2, 16, 1),
    Sketcher.Constraint("Coincident", 20, 2, 21, 1),
    Sketcher.Constraint("Coincident", 21, 2, 22, 1),
    Sketcher.Constraint("Coincident", 22, 2, 23, 1),
    Sketcher.Constraint("Coincident", 23, 2, 20, 1),
    Sketcher.Constraint("Coincident", 24, 2, 25, 1),
    Sketcher.Constraint("Coincident", 25, 2, 26, 1),
    Sketcher.Constraint("Coincident", 26, 2, 27, 1),
    Sketcher.Constraint("Coincident", 27, 2, 24, 1),
    Sketcher.Constraint("Coincident", 28, 2, 29, 1),
    Sketcher.Constraint("Coincident", 29, 2, 30, 1),
    Sketcher.Constraint("Coincident", 30, 2, 31, 1),
    Sketcher.Constraint("Coincident", 31, 2, 28, 1),
    Sketcher.Constraint("Vertical", 0),
    Sketcher.Constraint("Horizontal", 1),
    Sketcher.Constraint("Vertical", 2),
    Sketcher.Constraint("Horizontal", 3),
    Sketcher.Constraint("Horizontal", 4),
    Sketcher.Constraint("Vertical", 5),
    Sketcher.Constraint("Horizontal", 6),
    Sketcher.Constraint("Vertical", 7),
    Sketcher.Constraint("Vertical", 8),
    Sketcher.Constraint("Horizontal", 9),
    Sketcher.Constraint("Vertical", 10),
    Sketcher.Constraint("Horizontal", 11),
    Sketcher.Constraint("Horizontal", 12),
    Sketcher.Constraint("Vertical", 13),
    Sketcher.Constraint("Horizontal", 14),
    Sketcher.Constraint("Vertical", 15),
    Sketcher.Constraint("Vertical", 16),
    Sketcher.Constraint("Horizontal", 17),
    Sketcher.Constraint("Vertical", 18),
    Sketcher.Constraint("Horizontal", 19),
    Sketcher.Constraint("Horizontal", 20),
    Sketcher.Constraint("Vertical", 21),
    Sketcher.Constraint("Horizontal", 22),
    Sketcher.Constraint("Vertical", 23),
    Sketcher.Constraint("Vertical", 24),
    Sketcher.Constraint("Horizontal", 25),
    Sketcher.Constraint("Vertical", 26),
    Sketcher.Constraint("Horizontal", 27),
    Sketcher.Constraint("Horizontal", 28),
    Sketcher.Constraint("Vertical", 29),
    Sketcher.Constraint("Horizontal", 30),
    Sketcher.Constraint("Vertical", 31),
    Sketcher.Constraint("Symmetric", 2, 2, 16, 2, -1, 1),
    Sketcher.Constraint("Symmetric", 0, 2, 18, 2, -1, 1),
    Sketcher.Constraint("Symmetric", 6, 2, 20, 2, -1, 1),
    Sketcher.Constraint("Symmetric", 4, 2, 22, 2, -1, 1),
    Sketcher.Constraint("Symmetric", 10, 2, 24, 2, -1, 1),
    Sketcher.Constraint("Symmetric", 8, 2, 26, 2, -1, 1),
    Sketcher.Constraint("Symmetric", 14, 2, 28, 2, -1, 1),
    Sketcher.Constraint("Symmetric", 12, 2, 30, 2, -1, 1),
    Sketcher.Constraint("Symmetric", 9, 2, 16, 2, -2),
    Sketcher.Constraint("Symmetric", 11, 2, 18, 2, -2),
    Sketcher.Constraint("Symmetric", 15, 2, 20, 2, -2),
    Sketcher.Constraint("Symmetric", 13, 2, 22, 2, -2),
    Sketcher.Constraint("DistanceX", 1, 1, 1, 2, Q("5.2 in")),
    Sketcher.Constraint("DistanceY", 0, 2, 0, 1, Q("4.2 in")),
    Sketcher.Constraint("DistanceX", 4, 2, 4, 1, Q("4.92 in")),
    Sketcher.Constraint("DistanceY", 5, 1, 5, 2, Q("3.92 in")),
    Sketcher.Constraint("DistanceX", 0, 2, 4, 2, Q("0.14 in")),
    Sketcher.Constraint("DistanceY", 0, 2, 4, 2, Q("0.14 in")),
    Sketcher.Constraint("DistanceX", 0, 2, -1, 1, Q("28.4375 in")),
    Sketcher.Constraint("DistanceY", 0, 2, -1, 1, Q("10.4375 in")),
])
sketch7.setExpression("Constraints[76]", "Params.sketch7_width")
sketch7.setExpression("Constraints[77]", "Params.sketch7_height")
sketch7.setExpression("Constraints[78]", "Params.sketch7_width2")
sketch7.setExpression("Constraints[79]", "Params.sketch7_height2")
pad7 = doc.addObject("PartDesign::Pad", "Pad006")
body.addObject(pad7)
pad7.Profile = sketch7
pad7.setExpression("Length", "Params.pad7_length")

# Sketch on XZ plane
sketch8 = doc.addObject("Sketcher::SketchObject", "Sketch007")
body.addObject(sketch8)
sketch8.AttachmentSupport = (doc.XZ_Plane, [""])
sketch8.MapMode = "FlatFace"
sketch8.AttachmentOffset = App.Placement(App.Vector(0, 0, -1 * 25.4), App.Rotation())
sketch8.addGeometry([
    Part.LineSegment(App.Vector(-721, -264, 0), App.Vector(-721, -228, 0)),  # 0
    Part.LineSegment(App.Vector(-721, -228, 0), App.Vector(-685, -228, 0)),  # 1
    Part.LineSegment(App.Vector(-685, -228, 0), App.Vector(-685, -264, 0)),  # 2
    Part.LineSegment(App.Vector(-685, -264, 0), App.Vector(-721, -264, 0)),  # 3
    Part.LineSegment(App.Vector(-721, 228, 0), App.Vector(-721, 264, 0)),  # 4
    Part.LineSegment(App.Vector(-721, 264, 0), App.Vector(-685, 264, 0)),  # 5
    Part.LineSegment(App.Vector(-685, 264, 0), App.Vector(-685, 228, 0)),  # 6
    Part.LineSegment(App.Vector(-685, 228, 0), App.Vector(-721, 228, 0)),  # 7
    Part.LineSegment(App.Vector(685, 228, 0), App.Vector(685, 264, 0)),  # 8
    Part.LineSegment(App.Vector(685, 264, 0), App.Vector(721, 264, 0)),  # 9
    Part.LineSegment(App.Vector(721, 264, 0), App.Vector(721, 228, 0)),  # 10
    Part.LineSegment(App.Vector(721, 228, 0), App.Vector(685, 228, 0)),  # 11
    Part.LineSegment(App.Vector(685, -264, 0), App.Vector(685, -228, 0)),  # 12
    Part.LineSegment(App.Vector(685, -228, 0), App.Vector(721, -228, 0)),  # 13
    Part.LineSegment(App.Vector(721, -228, 0), App.Vector(721, -264, 0)),  # 14
    Part.LineSegment(App.Vector(721, -264, 0), App.Vector(685, -264, 0)),  # 15
], False)
sketch8.addConstraint([
    Sketcher.Constraint("Coincident", 0, 2, 1, 1),
    Sketcher.Constraint("Coincident", 1, 2, 2, 1),
    Sketcher.Constraint("Coincident", 2, 2, 3, 1),
    Sketcher.Constraint("Coincident", 3, 2, 0, 1),
    Sketcher.Constraint("Coincident", 4, 2, 5, 1),
    Sketcher.Constraint("Coincident", 5, 2, 6, 1),
    Sketcher.Constraint("Coincident", 6, 2, 7, 1),
    Sketcher.Constraint("Coincident", 7, 2, 4, 1),
    Sketcher.Constraint("Coincident", 8, 2, 9, 1),
    Sketcher.Constraint("Coincident", 9, 2, 10, 1),
    Sketcher.Constraint("Coincident", 10, 2, 11, 1),
    Sketcher.Constraint("Coincident", 11, 2, 8, 1),
    Sketcher.Constraint("Coincident", 12, 2, 13, 1),
    Sketcher.Constraint("Coincident", 13, 2, 14, 1),
    Sketcher.Constraint("Coincident", 14, 2, 15, 1),
    Sketcher.Constraint("Coincident", 15, 2, 12, 1),
    Sketcher.Constraint("Vertical", 0),
    Sketcher.Constraint("Horizontal", 1),
    Sketcher.Constraint("Vertical", 2),
    Sketcher.Constraint("Horizontal", 3),
    Sketcher.Constraint("Vertical", 4),
    Sketcher.Constraint("Horizontal", 5),
    Sketcher.Constraint("Vertical", 6),
    Sketcher.Constraint("Horizontal", 7),
    Sketcher.Constraint("Vertical", 8),
    Sketcher.Constraint("Horizontal", 9),
    Sketcher.Constraint("Vertical", 10),
    Sketcher.Constraint("Horizontal", 11),
    Sketcher.Constraint("Vertical", 12),
    Sketcher.Constraint("Horizontal", 13),
    Sketcher.Constraint("Vertical", 14),
    Sketcher.Constraint("Horizontal", 15),
    Sketcher.Constraint("Symmetric", 2, 2, 8, 2, -1, 1),
    Sketcher.Constraint("Symmetric", 0, 2, 10, 2, -1, 1),
    Sketcher.Constraint("Symmetric", 6, 2, 12, 2, -1, 1),
    Sketcher.Constraint("Symmetric", 4, 2, 14, 2, -1, 1),
    Sketcher.Constraint("Symmetric", 5, 2, 8, 2, -2),
    Sketcher.Constraint("Symmetric", 7, 2, 10, 2, -2),
    Sketcher.Constraint("Equal", 15, 0),
    Sketcher.Constraint("DistanceX", 1, 1, 1, 2, Q("1.4 in")),
    Sketcher.Constraint("DistanceY", 0, 2, 4, 2, Q("19.375 in")),
    Sketcher.Constraint("DistanceX", 5, 2, 8, 2, Q("53.975 in")),
])
sketch8.setExpression("Constraints[39]", "Params.sketch8_width")
pocket1 = doc.addObject("PartDesign::Pocket", "Pocket")
body.addObject(pocket1)
pocket1.Profile = sketch8
pocket1.setExpression("Length", "Params.pocket1_length")
pocket1.Reversed = True
body2 = doc.addObject("PartDesign::Body", "Body001")

# Sketch on YZ plane
sketch9 = doc.addObject("Sketcher::SketchObject", "Sketch008")
body2.addObject(sketch9)
sketch9.AttachmentSupport = (doc.getObject("YZ_Plane001"), [""])
sketch9.MapMode = "FlatFace"
sketch9.AttachmentOffset = App.Placement(App.Vector(0, 0, -27.1875 * 25.4), App.Rotation())
sketch9.addGeometry(Part.Circle(App.Vector(27.3, 1.3, 0), App.Vector(0, 0, 1), 1.9), False)
sketch9.addConstraint([
    Sketcher.Constraint("Diameter", 0, Q("0.15 in")),
    Sketcher.Constraint("DistanceX", -1, 1, 0, 3, Q("1.075 in")),
    Sketcher.Constraint("DistanceY", -1, 1, 0, 3, 1.318132),
])
sketch9.setExpression("Constraints[0]", "Params.sketch9_diameter")
pad8 = doc.addObject("PartDesign::Pad", "Pad007")
body2.addObject(pad8)
pad8.Profile = sketch9
pad8.setExpression("Length", "Params.pad8_length")
body3 = doc.addObject("PartDesign::Body", "Body002")

# Sketch on YZ plane
sketch10 = doc.addObject("Sketcher::SketchObject", "Sketch009")
body3.addObject(sketch10)
sketch10.AttachmentSupport = (doc.getObject("YZ_Plane002"), [""])
sketch10.MapMode = "FlatFace"
sketch10.AttachmentOffset = App.Placement(App.Vector(0, 0, -27.1875 * 25.4), App.Rotation())
sketch10.addGeometry(Part.Circle(App.Vector(27.3, -49.2, 0), App.Vector(0, 0, 1), 1.9), False)
sketch10.addConstraint([
    Sketcher.Constraint("Diameter", 0, Q("0.15 in")),
    Sketcher.Constraint("DistanceX", -1, 1, 0, 3, Q("1.075 in")),
    Sketcher.Constraint("DistanceY", 0, 3, -1, 1, 49.227868),
])
sketch10.setExpression("Constraints[0]", "Params.sketch10_diameter")
pad9 = doc.addObject("PartDesign::Pad", "Pad008")
body3.addObject(pad9)
pad9.Profile = sketch10
pad9.setExpression("Length", "Params.pad9_length")
body4 = doc.addObject("PartDesign::Body", "Body003")

# Sketch on YZ plane
sketch11 = doc.addObject("Sketcher::SketchObject", "Sketch010")
body4.addObject(sketch11)
sketch11.AttachmentSupport = (doc.getObject("YZ_Plane003"), [""])
sketch11.MapMode = "FlatFace"
sketch11.AttachmentOffset = App.Placement(App.Vector(0, 0, -27.1875 * 25.4), App.Rotation())
sketch11.addGeometry(Part.Circle(App.Vector(27.3, -99.8, 0), App.Vector(0, 0, 1), 1.9), False)
sketch11.addConstraint([
    Sketcher.Constraint("Diameter", 0, Q("0.15 in")),
    Sketcher.Constraint("DistanceX", -1, 1, 0, 3, Q("1.075 in")),
    Sketcher.Constraint("DistanceY", 0, 3, -1, 1, 99.773868),
])
sketch11.setExpression("Constraints[0]", "Params.sketch11_diameter")
pad10 = doc.addObject("PartDesign::Pad", "Pad009")
body4.addObject(pad10)
pad10.Profile = sketch11
pad10.setExpression("Length", "Params.pad10_length")
body5 = doc.addObject("PartDesign::Body", "Body004")

# Sketch on YZ plane
sketch12 = doc.addObject("Sketcher::SketchObject", "Sketch011")
body5.addObject(sketch12)
sketch12.AttachmentSupport = (doc.getObject("YZ_Plane004"), [""])
sketch12.MapMode = "FlatFace"
sketch12.AttachmentOffset = App.Placement(App.Vector(0, 0, -27.1875 * 25.4), App.Rotation())
sketch12.addGeometry(Part.Circle(App.Vector(27.3, -150.3, 0), App.Vector(0, 0, 1), 1.9), False)
sketch12.addConstraint([
    Sketcher.Constraint("Diameter", 0, Q("0.15 in")),
    Sketcher.Constraint("DistanceX", -1, 1, 0, 3, Q("1.075 in")),
    Sketcher.Constraint("DistanceY", 0, 3, -1, 1, 150.319868),
])
sketch12.setExpression("Constraints[0]", "Params.sketch12_diameter")
pad11 = doc.addObject("PartDesign::Pad", "Pad010")
body5.addObject(pad11)
pad11.Profile = sketch12
pad11.setExpression("Length", "Params.pad11_length")
body6 = doc.addObject("PartDesign::Body", "Body005")

# Sketch on YZ plane
sketch13 = doc.addObject("Sketcher::SketchObject", "Sketch012")
body6.addObject(sketch13)
sketch13.AttachmentSupport = (doc.getObject("YZ_Plane005"), [""])
sketch13.MapMode = "FlatFace"
sketch13.AttachmentOffset = App.Placement(App.Vector(0, 0, -27.1875 * 25.4), App.Rotation())
sketch13.addGeometry(Part.Circle(App.Vector(27.3, -200.9, 0), App.Vector(0, 0, 1), 1.9), False)
sketch13.addConstraint([
    Sketcher.Constraint("Diameter", 0, Q("0.15 in")),
    Sketcher.Constraint("DistanceX", -1, 1, 0, 3, Q("1.075 in")),
    Sketcher.Constraint("DistanceY", 0, 3, -1, 1, 200.865868),
])
sketch13.setExpression("Constraints[0]", "Params.sketch13_diameter")
pad12 = doc.addObject("PartDesign::Pad", "Pad011")
body6.addObject(pad12)
pad12.Profile = sketch13
pad12.setExpression("Length", "Params.pad12_length")
body7 = doc.addObject("PartDesign::Body", "Body006")

# Sketch on YZ plane
sketch14 = doc.addObject("Sketcher::SketchObject", "Sketch013")
body7.addObject(sketch14)
sketch14.AttachmentSupport = (doc.getObject("YZ_Plane006"), [""])
sketch14.MapMode = "FlatFace"
sketch14.AttachmentOffset = App.Placement(App.Vector(0, 0, -27.1875 * 25.4), App.Rotation())
sketch14.addGeometry(Part.Circle(App.Vector(27.3, 51.9, 0), App.Vector(0, 0, 1), 1.9), False)
sketch14.addConstraint([
    Sketcher.Constraint("Diameter", 0, Q("0.15 in")),
    Sketcher.Constraint("DistanceX", -1, 1, 0, 3, Q("1.075 in")),
    Sketcher.Constraint("DistanceY", -1, 1, 0, 3, 51.864132),
])
sketch14.setExpression("Constraints[0]", "Params.sketch14_diameter")
pad13 = doc.addObject("PartDesign::Pad", "Pad012")
body7.addObject(pad13)
pad13.Profile = sketch14
pad13.setExpression("Length", "Params.pad13_length")
body8 = doc.addObject("PartDesign::Body", "Body007")

# Sketch on YZ plane
sketch15 = doc.addObject("Sketcher::SketchObject", "Sketch014")
body8.addObject(sketch15)
sketch15.AttachmentSupport = (doc.getObject("YZ_Plane007"), [""])
sketch15.MapMode = "FlatFace"
sketch15.AttachmentOffset = App.Placement(App.Vector(0, 0, -27.1875 * 25.4), App.Rotation())
sketch15.addGeometry(Part.Circle(App.Vector(27.3, 102.4, 0), App.Vector(0, 0, 1), 1.9), False)
sketch15.addConstraint([
    Sketcher.Constraint("Diameter", 0, Q("0.15 in")),
    Sketcher.Constraint("DistanceX", -1, 1, 0, 3, Q("1.075 in")),
    Sketcher.Constraint("DistanceY", -1, 1, 0, 3, 102.410132),
])
sketch15.setExpression("Constraints[0]", "Params.sketch15_diameter")
pad14 = doc.addObject("PartDesign::Pad", "Pad013")
body8.addObject(pad14)
pad14.Profile = sketch15
pad14.setExpression("Length", "Params.pad14_length")
body9 = doc.addObject("PartDesign::Body", "Body008")

# Sketch on YZ plane
sketch16 = doc.addObject("Sketcher::SketchObject", "Sketch015")
body9.addObject(sketch16)
sketch16.AttachmentSupport = (doc.getObject("YZ_Plane008"), [""])
sketch16.MapMode = "FlatFace"
sketch16.AttachmentOffset = App.Placement(App.Vector(0, 0, -27.1875 * 25.4), App.Rotation())
sketch16.addGeometry(Part.Circle(App.Vector(27.3, 153, 0), App.Vector(0, 0, 1), 1.9), False)
sketch16.addConstraint([
    Sketcher.Constraint("Diameter", 0, Q("0.15 in")),
    Sketcher.Constraint("DistanceX", -1, 1, 0, 3, Q("1.075 in")),
    Sketcher.Constraint("DistanceY", -1, 1, 0, 3, 152.956132),
])
sketch16.setExpression("Constraints[0]", "Params.sketch16_diameter")
pad15 = doc.addObject("PartDesign::Pad", "Pad014")
body9.addObject(pad15)
pad15.Profile = sketch16
pad15.setExpression("Length", "Params.pad15_length")
body10 = doc.addObject("PartDesign::Body", "Body009")

# Sketch on YZ plane
sketch17 = doc.addObject("Sketcher::SketchObject", "Sketch016")
body10.addObject(sketch17)
sketch17.AttachmentSupport = (doc.getObject("YZ_Plane009"), [""])
sketch17.MapMode = "FlatFace"
sketch17.AttachmentOffset = App.Placement(App.Vector(0, 0, -27.1875 * 25.4), App.Rotation())
sketch17.addGeometry(Part.Circle(App.Vector(27.3, 203.5, 0), App.Vector(0, 0, 1), 1.9), False)
sketch17.addConstraint([
    Sketcher.Constraint("Diameter", 0, Q("0.15 in")),
    Sketcher.Constraint("DistanceX", -1, 1, 0, 3, Q("1.075 in")),
    Sketcher.Constraint("DistanceY", -1, 1, 0, 3, 203.502132),
])
sketch17.setExpression("Constraints[0]", "Params.sketch17_diameter")
pad16 = doc.addObject("PartDesign::Pad", "Pad015")
body10.addObject(pad16)
pad16.Profile = sketch17
pad16.setExpression("Length", "Params.pad16_length")

doc.recompute()
